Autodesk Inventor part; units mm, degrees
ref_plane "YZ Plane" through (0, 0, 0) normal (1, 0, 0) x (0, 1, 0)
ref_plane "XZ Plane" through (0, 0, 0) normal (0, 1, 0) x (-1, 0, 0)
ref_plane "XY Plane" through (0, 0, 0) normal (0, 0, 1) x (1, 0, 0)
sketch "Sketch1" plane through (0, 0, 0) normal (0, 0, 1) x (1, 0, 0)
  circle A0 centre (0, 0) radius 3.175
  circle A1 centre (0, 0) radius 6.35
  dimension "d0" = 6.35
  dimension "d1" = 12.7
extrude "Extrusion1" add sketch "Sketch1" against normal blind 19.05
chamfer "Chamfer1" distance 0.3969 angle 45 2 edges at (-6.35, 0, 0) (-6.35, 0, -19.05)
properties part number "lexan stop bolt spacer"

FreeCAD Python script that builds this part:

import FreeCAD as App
import Part
import Sketcher
from FreeCAD import Vector
Q = App.Units.Quantity


def edges_at(feature, points):
    """Names of the edges that pass closest to the given points."""
    edges = feature.Shape.Edges
    near = lambda p: min(range(len(edges)), key=lambda i: edges[i].distToShape(Part.Vertex(*p))[0])
    return sorted({f"Edge{near(p) + 1}" for p in points})

doc = App.newDocument("Part")
body = doc.addObject("PartDesign::Body", "Body")

# Sketch on XY plane
sketch1 = doc.addObject("Sketcher::SketchObject", "Sketch")
body.addObject(sketch1)
sketch1.AttachmentSupport = (doc.XY_Plane, [""])
sketch1.MapMode = "FlatFace"
sketch1.addGeometry([
    Part.Circle(Vector(0, 0, 0), Vector(0, 0, 1), 6.3),
    Part.Circle(Vector(0, 0, 0), Vector(0, 0, 1), 3.2),
], False)
sketch1.addConstraint([
    Sketcher.Constraint("Coincident", 0, 3, -1, 1),
    Sketcher.Constraint("Coincident", 1, 3, -1, 1),
    Sketcher.Constraint("Diameter", 0, Q("0.5 in")),
    Sketcher.Constraint("Diameter", 1, Q("0.25 in")),
])
pad1 = doc.addObject("PartDesign::Pad", "Pad")
body.addObject(pad1)
pad1.Profile = sketch1
pad1.Length = Q("0.75 in")
pad1.Reversed = True
doc.recompute()

chamfer = doc.addObject("PartDesign::Chamfer", "Chamfer")
body.addObject(chamfer)
chamfer.Base = (pad1, edges_at(pad1, [(-6.35, 0, 0), (-6.35, 0, -19.05)]))
chamfer.Size = Q("0.015626 in")

doc.recompute()
